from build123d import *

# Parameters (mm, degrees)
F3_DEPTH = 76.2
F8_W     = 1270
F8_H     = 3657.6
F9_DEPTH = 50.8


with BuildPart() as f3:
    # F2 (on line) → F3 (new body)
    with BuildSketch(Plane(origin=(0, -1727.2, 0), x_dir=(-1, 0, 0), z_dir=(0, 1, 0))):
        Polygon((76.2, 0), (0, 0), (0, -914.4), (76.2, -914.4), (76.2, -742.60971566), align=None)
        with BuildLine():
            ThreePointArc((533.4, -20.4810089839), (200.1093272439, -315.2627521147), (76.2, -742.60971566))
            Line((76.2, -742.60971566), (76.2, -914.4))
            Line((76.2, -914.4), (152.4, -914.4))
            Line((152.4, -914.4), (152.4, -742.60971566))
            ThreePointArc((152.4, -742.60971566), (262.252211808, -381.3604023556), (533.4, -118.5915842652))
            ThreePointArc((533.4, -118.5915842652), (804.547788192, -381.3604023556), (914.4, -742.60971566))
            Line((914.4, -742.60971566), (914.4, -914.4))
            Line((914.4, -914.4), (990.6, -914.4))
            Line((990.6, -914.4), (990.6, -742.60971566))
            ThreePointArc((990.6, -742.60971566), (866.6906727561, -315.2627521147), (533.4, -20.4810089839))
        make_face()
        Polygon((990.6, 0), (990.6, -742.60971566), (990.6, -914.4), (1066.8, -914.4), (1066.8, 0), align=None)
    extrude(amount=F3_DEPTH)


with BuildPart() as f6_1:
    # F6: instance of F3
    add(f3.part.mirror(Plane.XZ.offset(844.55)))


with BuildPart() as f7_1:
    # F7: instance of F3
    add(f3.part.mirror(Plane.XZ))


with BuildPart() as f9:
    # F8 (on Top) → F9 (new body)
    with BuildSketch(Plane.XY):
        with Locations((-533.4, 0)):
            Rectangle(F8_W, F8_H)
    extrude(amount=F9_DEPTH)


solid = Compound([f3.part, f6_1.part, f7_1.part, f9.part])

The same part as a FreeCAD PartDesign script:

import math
import FreeCAD as App
import Part
import Sketcher
from FreeCAD import Vector
Q = App.Units.Quantity


def add_polygon(sketch, points):
    """Adds a closed chain of lines whose ends are joined by coincident constraints."""
    first, n = sketch.GeometryCount, len(points)
    for a, b in zip(points, points[1:] + points[:1]):
        sketch.addGeometry(Part.LineSegment(App.Vector(*a, 0), App.Vector(*b, 0)), False)
    for i in range(n):
        sketch.addConstraint(Sketcher.Constraint("Coincident", first + i, 2, first + (i + 1) % n, 1))

doc = App.newDocument("Part")
body = doc.addObject("PartDesign::Body", "Body")

sketch1 = body.newObject("Sketcher::SketchObject", "Sketch")
sketch1.AttachmentSupport = (doc.getObject("XZ_Plane"), [""])
sketch1.MapMode = "FlatFace"
sketch1.AttachmentOffset = App.Placement(Vector(0, 0, 68 * 25.4), App.Rotation())
sketch1.addGeometry([
    Part.LineSegment(Vector(-76.2, 0, 0), Vector(0, 0, 0)),
    Part.LineSegment(Vector(0, 0, 0), Vector(0, -914.4, 0)),
    Part.LineSegment(Vector(0, -914.4, 0), Vector(-152.4, -914.4, 0)),
    Part.LineSegment(Vector(-152.4, -914.4, 0), Vector(-152.4, -742.609716, 0)),
    Part.ArcOfCircle(Part.Circle(Vector(-906.12432, -774.48243, 0), Vector(0, 0, 1), 754.397919), math.radians(2.421422), math.radians(60.391649)),
    Part.ArcOfCircle(Part.Circle(Vector(-160.67568, -774.48243, 0), Vector(0, 0, 1), 754.397919), math.radians(119.608351), math.radians(177.578578)),
    Part.LineSegment(Vector(-914.4, -742.609716, 0), Vector(-914.4, -914.4, 0)),
    Part.LineSegment(Vector(-914.4, -914.4, 0), Vector(-1066.8, -914.4, 0)),
    Part.LineSegment(Vector(-1066.8, -914.4, 0), Vector(-1066.8, 0, 0)),
    Part.LineSegment(Vector(-1066.8, 0, 0), Vector(-990.6, 0, 0)),
    Part.LineSegment(Vector(-990.6, 0, 0), Vector(-990.6, -742.609716, 0)),
    Part.ArcOfCircle(Part.Circle(Vector(-191.713617, -742.609716, 0), Vector(0, 0, 1), 798.886383), math.radians(115.321897), math.radians(180)),
    Part.ArcOfCircle(Part.Circle(Vector(-875.086383, -742.609716, 0), Vector(0, 0, 1), 798.886383), math.radians(0), math.radians(64.678103)),
    Part.LineSegment(Vector(-76.2, -742.609716, 0), Vector(-76.2, 0, 0)),
], False)
sketch1.addConstraint([
    Sketcher.Constraint("Coincident", 0, 2, 1, 1),
    Sketcher.Constraint("Coincident", 1, 2, 2, 1),
    Sketcher.Constraint("Coincident", 2, 2, 3, 1),
    Sketcher.Constraint("Coincident", 3, 2, 4, 1),
    Sketcher.Constraint("Coincident", 4, 2, 5, 1),
    Sketcher.Constraint("Coincident", 5, 2, 6, 1),
    Sketcher.Constraint("Coincident", 6, 2, 7, 1),
    Sketcher.Constraint("Coincident", 7, 2, 8, 1),
    Sketcher.Constraint("Coincident", 8, 2, 9, 1),
    Sketcher.Constraint("Coincident", 9, 2, 10, 1),
    Sketcher.Constraint("Tangent", 10, 2, 11, 2),
    Sketcher.Constraint("Coincident", 11, 1, 12, 2),
    Sketcher.Constraint("Tangent", 12, 1, 13, 1),
    Sketcher.Constraint("Coincident", 13, 2, 0, 1),
    Sketcher.Constraint("Horizontal", 0),
    Sketcher.Constraint("Vertical", 1),
    Sketcher.Constraint("Horizontal", 2),
    Sketcher.Constraint("Vertical", 3),
    Sketcher.Constraint("Vertical", 6),
    Sketcher.Constraint("Horizontal", 7),
    Sketcher.Constraint("Vertical", 8),
    Sketcher.Constraint("Horizontal", 9),
    Sketcher.Constraint("Vertical", 10),
    Sketcher.Constraint("Vertical", 13),
    Sketcher.Constraint("Coincident", 0, 2, -1, 1),
    Sketcher.Constraint("Equal", 4, 5),
    Sketcher.Constraint("Equal", 11, 12),
    Sketcher.Constraint("PointOnObject", 8, 2, -1),
    Sketcher.Constraint("Horizontal", 4, 3, 5, 3),
    Sketcher.Constraint("Horizontal", 11, 3, 12, 3),
    Sketcher.Constraint("Horizontal", 12, 3, 3, 2),
    Sketcher.Constraint("Horizontal", 2, 2, 6, 2),
    Sketcher.Constraint("Equal", 2, 7),
    Sketcher.Constraint("Equal", 0, 9),
    Sketcher.Constraint("Equal", 3, 6),
    Sketcher.Constraint("DistanceX", 0, 1, 0, 2, Q("3 in")),
    Sketcher.Constraint("DistanceX", 2, 2, 2, 1, Q("6 in")),
    Sketcher.Constraint("DistanceY", 1, 2, 1, 1, Q("36 in")),
    Sketcher.Constraint("DistanceX", 5, 2, -1, 1, Q("36 in")),
    Sketcher.Constraint("Radius", 4, Q("754.397919 mm")),
    Sketcher.Constraint("Radius", 11, Q("798.886383 mm")),
    Sketcher.Constraint("DistanceY", 3, 1, 3, 2, Q("171.790284 mm")),
    Sketcher.Constraint("DistanceX", 4, 3, -1, 1, Q("906.12432 mm")),
])
pad1 = body.newObject("PartDesign::Pad", "Pad")
pad1.Profile = sketch1
pad1.Length = Q("3 in")
pad1.Reversed = True
body2 = doc.addObject("PartDesign::Body", "Body001")
doc.recompute()

mirroring = doc.addObject("Part::Mirroring", "Mirroring")
mirroring.Source = body
mirroring.Base = Vector(0, -844.55, 0)
mirroring.Normal = Vector(0, -1, 0)
body2.BaseFeature = mirroring
doc.recompute()
body3 = doc.addObject("PartDesign::Body", "Body002")
doc.recompute()

mirroring2 = doc.addObject("Part::Mirroring", "Mirroring001")
mirroring2.Source = body
mirroring2.Base = Vector(0, 0, 0)
mirroring2.Normal = Vector(0, -1, 0)
body3.BaseFeature = mirroring2
doc.recompute()
body4 = doc.addObject("PartDesign::Body", "Body003")

sketch2 = body4.newObject("Sketcher::SketchObject", "Sketch001")
sketch2.AttachmentSupport = (doc.getObject("XY_Plane003"), [""])
sketch2.MapMode = "FlatFace"
add_polygon(sketch2, [(-1168.4, 1828.8), (-1168.4, -1828.8), (101.6, -1828.8), (101.6, 1828.8)])
sketch2.addConstraint([
    Sketcher.Constraint("Vertical", 0),
    Sketcher.Constraint("Horizontal", 1),
    Sketcher.Constraint("Vertical", 2),
    Sketcher.Constraint("Horizontal", 3),
    Sketcher.Constraint("DistanceX", 1, 1, 1, 2, Q("50 in")),
    Sketcher.Constraint("DistanceY", 0, 2, 0, 1, Q("144 in")),
    Sketcher.Constraint("DistanceX", 0, 2, -1, 1, Q("46 in")),
    Sketcher.Constraint("DistanceY", 0, 2, -1, 1, Q("72 in")),
])
pad2 = body4.newObject("PartDesign::Pad", "Pad001")
pad2.Profile = sketch2
pad2.Length = Q("2 in")
mirroring.Visibility = False
mirroring2.Visibility = False

doc.recompute()
